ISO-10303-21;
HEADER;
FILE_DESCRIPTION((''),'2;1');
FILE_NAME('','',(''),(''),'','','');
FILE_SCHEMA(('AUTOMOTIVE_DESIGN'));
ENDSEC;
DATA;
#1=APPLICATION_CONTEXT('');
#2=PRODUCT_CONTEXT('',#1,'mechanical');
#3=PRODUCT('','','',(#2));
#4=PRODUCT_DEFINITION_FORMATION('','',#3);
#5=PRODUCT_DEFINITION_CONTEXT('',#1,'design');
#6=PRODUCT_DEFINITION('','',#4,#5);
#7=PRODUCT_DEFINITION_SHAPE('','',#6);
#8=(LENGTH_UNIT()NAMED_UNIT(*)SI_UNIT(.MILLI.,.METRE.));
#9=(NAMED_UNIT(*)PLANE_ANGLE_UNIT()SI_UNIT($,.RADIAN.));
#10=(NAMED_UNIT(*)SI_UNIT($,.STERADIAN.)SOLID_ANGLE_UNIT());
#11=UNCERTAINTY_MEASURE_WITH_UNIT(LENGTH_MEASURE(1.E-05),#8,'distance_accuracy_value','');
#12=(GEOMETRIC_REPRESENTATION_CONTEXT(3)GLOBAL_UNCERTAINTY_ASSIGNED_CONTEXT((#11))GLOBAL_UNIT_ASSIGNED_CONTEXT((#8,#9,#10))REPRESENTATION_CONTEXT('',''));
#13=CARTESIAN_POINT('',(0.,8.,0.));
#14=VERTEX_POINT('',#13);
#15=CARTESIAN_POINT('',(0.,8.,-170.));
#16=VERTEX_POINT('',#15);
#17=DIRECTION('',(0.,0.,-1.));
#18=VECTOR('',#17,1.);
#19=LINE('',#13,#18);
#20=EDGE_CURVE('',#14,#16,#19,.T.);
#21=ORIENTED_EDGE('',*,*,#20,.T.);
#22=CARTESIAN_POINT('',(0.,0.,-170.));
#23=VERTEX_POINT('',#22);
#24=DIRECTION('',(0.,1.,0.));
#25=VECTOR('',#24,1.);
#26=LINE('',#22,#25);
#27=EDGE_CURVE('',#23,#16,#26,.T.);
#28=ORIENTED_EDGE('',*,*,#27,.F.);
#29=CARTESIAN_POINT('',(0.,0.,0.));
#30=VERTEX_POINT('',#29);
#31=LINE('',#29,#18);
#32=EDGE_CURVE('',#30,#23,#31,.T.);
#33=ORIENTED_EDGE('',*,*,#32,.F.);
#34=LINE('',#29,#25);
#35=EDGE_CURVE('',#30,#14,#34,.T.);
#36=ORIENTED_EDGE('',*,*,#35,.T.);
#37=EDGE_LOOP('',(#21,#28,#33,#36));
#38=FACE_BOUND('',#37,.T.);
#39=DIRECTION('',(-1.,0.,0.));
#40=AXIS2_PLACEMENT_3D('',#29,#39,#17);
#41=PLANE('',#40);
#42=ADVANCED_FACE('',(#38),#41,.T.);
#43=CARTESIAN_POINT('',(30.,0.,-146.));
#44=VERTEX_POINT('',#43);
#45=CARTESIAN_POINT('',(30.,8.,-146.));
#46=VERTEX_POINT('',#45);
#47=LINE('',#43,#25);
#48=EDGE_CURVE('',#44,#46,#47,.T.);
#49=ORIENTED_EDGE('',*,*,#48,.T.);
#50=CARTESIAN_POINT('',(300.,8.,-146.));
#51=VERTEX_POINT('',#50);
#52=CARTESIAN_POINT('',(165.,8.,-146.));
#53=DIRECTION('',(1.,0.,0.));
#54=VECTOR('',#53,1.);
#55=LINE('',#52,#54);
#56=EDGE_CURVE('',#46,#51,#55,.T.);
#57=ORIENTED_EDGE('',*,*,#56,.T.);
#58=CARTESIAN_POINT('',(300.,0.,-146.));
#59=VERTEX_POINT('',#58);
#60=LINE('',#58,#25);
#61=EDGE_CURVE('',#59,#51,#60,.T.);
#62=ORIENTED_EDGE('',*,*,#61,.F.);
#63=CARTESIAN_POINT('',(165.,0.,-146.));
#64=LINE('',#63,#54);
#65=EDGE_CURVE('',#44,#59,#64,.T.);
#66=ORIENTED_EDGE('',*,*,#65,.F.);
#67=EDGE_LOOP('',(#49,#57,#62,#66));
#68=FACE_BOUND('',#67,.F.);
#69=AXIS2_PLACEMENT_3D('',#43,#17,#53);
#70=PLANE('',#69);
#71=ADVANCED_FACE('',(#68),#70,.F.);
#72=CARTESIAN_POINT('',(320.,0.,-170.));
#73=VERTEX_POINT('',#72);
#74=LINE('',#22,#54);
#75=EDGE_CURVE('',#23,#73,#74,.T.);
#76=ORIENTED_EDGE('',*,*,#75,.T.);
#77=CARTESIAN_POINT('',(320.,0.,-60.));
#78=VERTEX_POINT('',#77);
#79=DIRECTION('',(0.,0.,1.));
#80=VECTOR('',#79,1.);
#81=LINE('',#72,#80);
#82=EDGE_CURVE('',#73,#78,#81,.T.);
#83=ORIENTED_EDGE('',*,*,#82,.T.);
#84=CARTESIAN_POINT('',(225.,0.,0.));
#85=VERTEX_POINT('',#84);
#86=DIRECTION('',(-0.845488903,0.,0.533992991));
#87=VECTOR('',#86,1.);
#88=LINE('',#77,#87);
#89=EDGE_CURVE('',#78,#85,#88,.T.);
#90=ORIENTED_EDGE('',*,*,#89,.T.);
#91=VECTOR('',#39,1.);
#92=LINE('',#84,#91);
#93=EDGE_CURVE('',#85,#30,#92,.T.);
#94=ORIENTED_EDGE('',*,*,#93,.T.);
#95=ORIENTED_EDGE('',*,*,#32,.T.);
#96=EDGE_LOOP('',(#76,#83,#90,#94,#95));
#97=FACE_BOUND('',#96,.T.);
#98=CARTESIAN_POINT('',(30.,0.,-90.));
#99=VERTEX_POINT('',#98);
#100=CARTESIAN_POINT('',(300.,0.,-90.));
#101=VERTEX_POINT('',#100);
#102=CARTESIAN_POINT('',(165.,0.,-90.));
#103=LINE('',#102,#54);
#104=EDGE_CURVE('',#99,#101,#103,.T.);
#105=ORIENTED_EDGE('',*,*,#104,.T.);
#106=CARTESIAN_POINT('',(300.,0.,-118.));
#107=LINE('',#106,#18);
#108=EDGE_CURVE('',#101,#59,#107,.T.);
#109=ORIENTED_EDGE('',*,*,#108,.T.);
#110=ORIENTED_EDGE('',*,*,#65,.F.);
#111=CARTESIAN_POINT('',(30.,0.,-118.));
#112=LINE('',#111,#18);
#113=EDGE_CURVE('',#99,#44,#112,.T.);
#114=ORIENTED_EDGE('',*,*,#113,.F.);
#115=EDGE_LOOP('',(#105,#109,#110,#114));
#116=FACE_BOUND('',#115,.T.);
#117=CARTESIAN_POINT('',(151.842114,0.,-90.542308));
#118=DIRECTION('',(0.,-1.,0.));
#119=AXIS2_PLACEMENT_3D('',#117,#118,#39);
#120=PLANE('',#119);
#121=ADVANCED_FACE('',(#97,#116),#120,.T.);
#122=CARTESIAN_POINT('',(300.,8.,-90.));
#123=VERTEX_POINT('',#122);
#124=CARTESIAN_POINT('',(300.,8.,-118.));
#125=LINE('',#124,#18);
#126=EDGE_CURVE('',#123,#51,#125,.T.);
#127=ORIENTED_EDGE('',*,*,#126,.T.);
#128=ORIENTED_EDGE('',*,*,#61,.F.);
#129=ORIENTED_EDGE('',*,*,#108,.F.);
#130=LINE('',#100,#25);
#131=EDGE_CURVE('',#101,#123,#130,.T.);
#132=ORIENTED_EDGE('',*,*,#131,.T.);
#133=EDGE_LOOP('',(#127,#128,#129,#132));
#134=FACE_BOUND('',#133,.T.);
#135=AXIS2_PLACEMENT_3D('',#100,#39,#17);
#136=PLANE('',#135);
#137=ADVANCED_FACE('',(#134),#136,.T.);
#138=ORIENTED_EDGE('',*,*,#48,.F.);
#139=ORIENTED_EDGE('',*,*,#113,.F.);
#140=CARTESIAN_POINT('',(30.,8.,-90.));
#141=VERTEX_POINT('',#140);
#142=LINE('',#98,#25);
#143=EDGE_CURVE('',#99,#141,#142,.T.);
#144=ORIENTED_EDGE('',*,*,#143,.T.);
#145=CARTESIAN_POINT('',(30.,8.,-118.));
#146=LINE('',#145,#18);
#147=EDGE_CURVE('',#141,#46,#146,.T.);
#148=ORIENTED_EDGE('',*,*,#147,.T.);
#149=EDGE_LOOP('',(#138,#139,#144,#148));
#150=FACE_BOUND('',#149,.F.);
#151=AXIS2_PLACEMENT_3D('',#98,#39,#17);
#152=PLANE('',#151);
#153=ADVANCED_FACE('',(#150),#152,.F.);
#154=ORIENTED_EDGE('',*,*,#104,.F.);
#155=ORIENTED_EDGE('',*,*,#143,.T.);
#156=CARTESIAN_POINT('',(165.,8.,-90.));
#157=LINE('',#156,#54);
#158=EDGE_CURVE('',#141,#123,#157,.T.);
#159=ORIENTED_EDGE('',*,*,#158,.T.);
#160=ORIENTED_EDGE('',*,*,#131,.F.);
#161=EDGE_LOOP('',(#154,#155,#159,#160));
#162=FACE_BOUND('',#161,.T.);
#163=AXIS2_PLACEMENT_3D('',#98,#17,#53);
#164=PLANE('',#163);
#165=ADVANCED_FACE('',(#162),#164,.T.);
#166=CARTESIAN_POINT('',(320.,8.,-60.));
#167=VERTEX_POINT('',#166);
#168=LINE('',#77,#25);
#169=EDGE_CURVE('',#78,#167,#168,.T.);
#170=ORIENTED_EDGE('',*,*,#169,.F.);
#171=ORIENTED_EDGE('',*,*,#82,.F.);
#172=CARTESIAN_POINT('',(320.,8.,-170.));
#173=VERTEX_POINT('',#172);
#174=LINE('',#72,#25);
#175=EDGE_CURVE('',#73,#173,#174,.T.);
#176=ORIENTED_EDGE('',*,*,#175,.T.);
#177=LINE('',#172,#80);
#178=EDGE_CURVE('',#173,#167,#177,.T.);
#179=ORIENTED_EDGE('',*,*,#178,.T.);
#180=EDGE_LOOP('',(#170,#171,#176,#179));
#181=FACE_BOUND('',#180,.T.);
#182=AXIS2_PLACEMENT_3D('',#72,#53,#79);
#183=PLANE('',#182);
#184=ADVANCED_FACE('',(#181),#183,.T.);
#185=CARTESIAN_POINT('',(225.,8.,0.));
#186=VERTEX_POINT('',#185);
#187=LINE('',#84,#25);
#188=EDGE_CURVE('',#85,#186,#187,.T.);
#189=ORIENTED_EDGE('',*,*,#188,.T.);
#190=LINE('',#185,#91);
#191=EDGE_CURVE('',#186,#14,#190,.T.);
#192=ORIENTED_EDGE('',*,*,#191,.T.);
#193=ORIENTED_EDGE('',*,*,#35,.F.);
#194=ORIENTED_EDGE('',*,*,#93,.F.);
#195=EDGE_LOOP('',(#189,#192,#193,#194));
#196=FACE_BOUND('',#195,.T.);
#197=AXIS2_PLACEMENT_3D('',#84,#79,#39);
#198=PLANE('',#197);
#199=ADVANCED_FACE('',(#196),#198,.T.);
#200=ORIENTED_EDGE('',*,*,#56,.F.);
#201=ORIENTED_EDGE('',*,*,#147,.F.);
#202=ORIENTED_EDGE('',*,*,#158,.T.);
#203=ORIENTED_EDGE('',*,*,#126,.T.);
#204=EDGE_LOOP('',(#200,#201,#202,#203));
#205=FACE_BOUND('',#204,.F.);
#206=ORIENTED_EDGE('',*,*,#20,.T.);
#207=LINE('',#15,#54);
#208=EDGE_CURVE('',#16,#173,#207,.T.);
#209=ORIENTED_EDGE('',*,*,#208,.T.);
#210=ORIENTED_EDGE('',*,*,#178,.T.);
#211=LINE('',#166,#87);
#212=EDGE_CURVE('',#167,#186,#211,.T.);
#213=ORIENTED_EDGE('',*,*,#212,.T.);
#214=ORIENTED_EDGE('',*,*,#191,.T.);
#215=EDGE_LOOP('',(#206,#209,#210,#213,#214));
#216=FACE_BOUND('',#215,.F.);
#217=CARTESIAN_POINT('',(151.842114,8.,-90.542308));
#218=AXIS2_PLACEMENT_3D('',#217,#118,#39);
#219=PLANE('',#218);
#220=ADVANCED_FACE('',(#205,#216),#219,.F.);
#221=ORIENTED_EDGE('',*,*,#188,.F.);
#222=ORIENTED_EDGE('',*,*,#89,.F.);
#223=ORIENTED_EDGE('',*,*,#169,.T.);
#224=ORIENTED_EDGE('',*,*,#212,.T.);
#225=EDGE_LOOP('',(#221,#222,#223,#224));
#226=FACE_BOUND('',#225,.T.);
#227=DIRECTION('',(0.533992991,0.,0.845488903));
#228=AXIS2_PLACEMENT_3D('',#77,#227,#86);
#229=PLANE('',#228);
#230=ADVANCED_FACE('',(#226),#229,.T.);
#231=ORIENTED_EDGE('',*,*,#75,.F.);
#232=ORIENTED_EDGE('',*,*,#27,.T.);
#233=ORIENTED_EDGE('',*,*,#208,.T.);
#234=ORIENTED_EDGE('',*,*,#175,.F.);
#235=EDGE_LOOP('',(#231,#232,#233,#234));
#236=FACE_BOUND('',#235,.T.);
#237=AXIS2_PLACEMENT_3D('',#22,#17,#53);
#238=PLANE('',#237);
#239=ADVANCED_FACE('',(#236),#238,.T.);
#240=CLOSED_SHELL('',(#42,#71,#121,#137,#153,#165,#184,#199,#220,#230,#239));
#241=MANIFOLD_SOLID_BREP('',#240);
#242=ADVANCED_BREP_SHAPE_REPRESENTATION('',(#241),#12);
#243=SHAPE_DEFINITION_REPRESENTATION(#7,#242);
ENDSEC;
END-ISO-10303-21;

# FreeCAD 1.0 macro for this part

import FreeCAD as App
import Part
import Sketcher

doc = App.newDocument("Part")
body = doc.addObject("PartDesign::Body", "Body")

sketch1 = body.newObject("Sketcher::SketchObject", "Sketch")
sketch1.AttachmentSupport = (doc.getObject("XZ_Plane"), [""])
sketch1.MapMode = "FlatFace"
sketch1.addGeometry([
    Part.LineSegment(App.Vector(320, -60, 0), App.Vector(320, -170, 0)),
    Part.LineSegment(App.Vector(320, -170, 0), App.Vector(0, -170, 0)),
    Part.LineSegment(App.Vector(0, -170, 0), App.Vector(0, 0, 0)),
    Part.LineSegment(App.Vector(0, 0, 0), App.Vector(225, 0, 0)),
    Part.LineSegment(App.Vector(225, 0, 0), App.Vector(320, -60, 0)),
    Part.LineSegment(App.Vector(30, -90, 0), App.Vector(30, -146, 0)),
    Part.LineSegment(App.Vector(30, -146, 0), App.Vector(300, -146, 0)),
    Part.LineSegment(App.Vector(300, -146, 0), App.Vector(300, -90, 0)),
    Part.LineSegment(App.Vector(300, -90, 0), App.Vector(30, -90, 0)),
], False)
sketch1.addConstraint([
    Sketcher.Constraint("Coincident", 0, 2, 1, 1),
    Sketcher.Constraint("Coincident", 1, 2, 2, 1),
    Sketcher.Constraint("Coincident", 2, 2, 3, 1),
    Sketcher.Constraint("Coincident", 3, 2, 4, 1),
    Sketcher.Constraint("Coincident", 4, 2, 0, 1),
    Sketcher.Constraint("Coincident", 5, 2, 6, 1),
    Sketcher.Constraint("Coincident", 6, 2, 7, 1),
    Sketcher.Constraint("Coincident", 7, 2, 8, 1),
    Sketcher.Constraint("Coincident", 8, 2, 5, 1),
    Sketcher.Constraint("Vertical", 0),
    Sketcher.Constraint("Horizontal", 1),
    Sketcher.Constraint("Vertical", 2),
    Sketcher.Constraint("Horizontal", 3),
    Sketcher.Constraint("Vertical", 5),
    Sketcher.Constraint("Horizontal", 6),
    Sketcher.Constraint("Vertical", 7),
    Sketcher.Constraint("Horizontal", 8),
    Sketcher.Constraint("Coincident", 2, 2, -1, 1),
    Sketcher.Constraint("DistanceX", 1, 2, 1, 1, 320.0),
    Sketcher.Constraint("DistanceX", 3, 1, 3, 2, 225.0),
    Sketcher.Constraint("DistanceX", 6, 1, 6, 2, 270.0),
    Sketcher.Constraint("DistanceY", 0, 2, 0, 1, 110.0),
    Sketcher.Constraint("DistanceY", 2, 1, 2, 2, 170.0),
    Sketcher.Constraint("DistanceY", 5, 2, 5, 1, 56.0),
    Sketcher.Constraint("DistanceX", -1, 1, 5, 2, 30.0),
    Sketcher.Constraint("DistanceY", 5, 2, -1, 1, 146.0),
])
pad1 = body.newObject("PartDesign::Pad", "Pad")
pad1.Profile = sketch1
pad1.Length = 8
pad1.Reversed = True

doc.recompute()
